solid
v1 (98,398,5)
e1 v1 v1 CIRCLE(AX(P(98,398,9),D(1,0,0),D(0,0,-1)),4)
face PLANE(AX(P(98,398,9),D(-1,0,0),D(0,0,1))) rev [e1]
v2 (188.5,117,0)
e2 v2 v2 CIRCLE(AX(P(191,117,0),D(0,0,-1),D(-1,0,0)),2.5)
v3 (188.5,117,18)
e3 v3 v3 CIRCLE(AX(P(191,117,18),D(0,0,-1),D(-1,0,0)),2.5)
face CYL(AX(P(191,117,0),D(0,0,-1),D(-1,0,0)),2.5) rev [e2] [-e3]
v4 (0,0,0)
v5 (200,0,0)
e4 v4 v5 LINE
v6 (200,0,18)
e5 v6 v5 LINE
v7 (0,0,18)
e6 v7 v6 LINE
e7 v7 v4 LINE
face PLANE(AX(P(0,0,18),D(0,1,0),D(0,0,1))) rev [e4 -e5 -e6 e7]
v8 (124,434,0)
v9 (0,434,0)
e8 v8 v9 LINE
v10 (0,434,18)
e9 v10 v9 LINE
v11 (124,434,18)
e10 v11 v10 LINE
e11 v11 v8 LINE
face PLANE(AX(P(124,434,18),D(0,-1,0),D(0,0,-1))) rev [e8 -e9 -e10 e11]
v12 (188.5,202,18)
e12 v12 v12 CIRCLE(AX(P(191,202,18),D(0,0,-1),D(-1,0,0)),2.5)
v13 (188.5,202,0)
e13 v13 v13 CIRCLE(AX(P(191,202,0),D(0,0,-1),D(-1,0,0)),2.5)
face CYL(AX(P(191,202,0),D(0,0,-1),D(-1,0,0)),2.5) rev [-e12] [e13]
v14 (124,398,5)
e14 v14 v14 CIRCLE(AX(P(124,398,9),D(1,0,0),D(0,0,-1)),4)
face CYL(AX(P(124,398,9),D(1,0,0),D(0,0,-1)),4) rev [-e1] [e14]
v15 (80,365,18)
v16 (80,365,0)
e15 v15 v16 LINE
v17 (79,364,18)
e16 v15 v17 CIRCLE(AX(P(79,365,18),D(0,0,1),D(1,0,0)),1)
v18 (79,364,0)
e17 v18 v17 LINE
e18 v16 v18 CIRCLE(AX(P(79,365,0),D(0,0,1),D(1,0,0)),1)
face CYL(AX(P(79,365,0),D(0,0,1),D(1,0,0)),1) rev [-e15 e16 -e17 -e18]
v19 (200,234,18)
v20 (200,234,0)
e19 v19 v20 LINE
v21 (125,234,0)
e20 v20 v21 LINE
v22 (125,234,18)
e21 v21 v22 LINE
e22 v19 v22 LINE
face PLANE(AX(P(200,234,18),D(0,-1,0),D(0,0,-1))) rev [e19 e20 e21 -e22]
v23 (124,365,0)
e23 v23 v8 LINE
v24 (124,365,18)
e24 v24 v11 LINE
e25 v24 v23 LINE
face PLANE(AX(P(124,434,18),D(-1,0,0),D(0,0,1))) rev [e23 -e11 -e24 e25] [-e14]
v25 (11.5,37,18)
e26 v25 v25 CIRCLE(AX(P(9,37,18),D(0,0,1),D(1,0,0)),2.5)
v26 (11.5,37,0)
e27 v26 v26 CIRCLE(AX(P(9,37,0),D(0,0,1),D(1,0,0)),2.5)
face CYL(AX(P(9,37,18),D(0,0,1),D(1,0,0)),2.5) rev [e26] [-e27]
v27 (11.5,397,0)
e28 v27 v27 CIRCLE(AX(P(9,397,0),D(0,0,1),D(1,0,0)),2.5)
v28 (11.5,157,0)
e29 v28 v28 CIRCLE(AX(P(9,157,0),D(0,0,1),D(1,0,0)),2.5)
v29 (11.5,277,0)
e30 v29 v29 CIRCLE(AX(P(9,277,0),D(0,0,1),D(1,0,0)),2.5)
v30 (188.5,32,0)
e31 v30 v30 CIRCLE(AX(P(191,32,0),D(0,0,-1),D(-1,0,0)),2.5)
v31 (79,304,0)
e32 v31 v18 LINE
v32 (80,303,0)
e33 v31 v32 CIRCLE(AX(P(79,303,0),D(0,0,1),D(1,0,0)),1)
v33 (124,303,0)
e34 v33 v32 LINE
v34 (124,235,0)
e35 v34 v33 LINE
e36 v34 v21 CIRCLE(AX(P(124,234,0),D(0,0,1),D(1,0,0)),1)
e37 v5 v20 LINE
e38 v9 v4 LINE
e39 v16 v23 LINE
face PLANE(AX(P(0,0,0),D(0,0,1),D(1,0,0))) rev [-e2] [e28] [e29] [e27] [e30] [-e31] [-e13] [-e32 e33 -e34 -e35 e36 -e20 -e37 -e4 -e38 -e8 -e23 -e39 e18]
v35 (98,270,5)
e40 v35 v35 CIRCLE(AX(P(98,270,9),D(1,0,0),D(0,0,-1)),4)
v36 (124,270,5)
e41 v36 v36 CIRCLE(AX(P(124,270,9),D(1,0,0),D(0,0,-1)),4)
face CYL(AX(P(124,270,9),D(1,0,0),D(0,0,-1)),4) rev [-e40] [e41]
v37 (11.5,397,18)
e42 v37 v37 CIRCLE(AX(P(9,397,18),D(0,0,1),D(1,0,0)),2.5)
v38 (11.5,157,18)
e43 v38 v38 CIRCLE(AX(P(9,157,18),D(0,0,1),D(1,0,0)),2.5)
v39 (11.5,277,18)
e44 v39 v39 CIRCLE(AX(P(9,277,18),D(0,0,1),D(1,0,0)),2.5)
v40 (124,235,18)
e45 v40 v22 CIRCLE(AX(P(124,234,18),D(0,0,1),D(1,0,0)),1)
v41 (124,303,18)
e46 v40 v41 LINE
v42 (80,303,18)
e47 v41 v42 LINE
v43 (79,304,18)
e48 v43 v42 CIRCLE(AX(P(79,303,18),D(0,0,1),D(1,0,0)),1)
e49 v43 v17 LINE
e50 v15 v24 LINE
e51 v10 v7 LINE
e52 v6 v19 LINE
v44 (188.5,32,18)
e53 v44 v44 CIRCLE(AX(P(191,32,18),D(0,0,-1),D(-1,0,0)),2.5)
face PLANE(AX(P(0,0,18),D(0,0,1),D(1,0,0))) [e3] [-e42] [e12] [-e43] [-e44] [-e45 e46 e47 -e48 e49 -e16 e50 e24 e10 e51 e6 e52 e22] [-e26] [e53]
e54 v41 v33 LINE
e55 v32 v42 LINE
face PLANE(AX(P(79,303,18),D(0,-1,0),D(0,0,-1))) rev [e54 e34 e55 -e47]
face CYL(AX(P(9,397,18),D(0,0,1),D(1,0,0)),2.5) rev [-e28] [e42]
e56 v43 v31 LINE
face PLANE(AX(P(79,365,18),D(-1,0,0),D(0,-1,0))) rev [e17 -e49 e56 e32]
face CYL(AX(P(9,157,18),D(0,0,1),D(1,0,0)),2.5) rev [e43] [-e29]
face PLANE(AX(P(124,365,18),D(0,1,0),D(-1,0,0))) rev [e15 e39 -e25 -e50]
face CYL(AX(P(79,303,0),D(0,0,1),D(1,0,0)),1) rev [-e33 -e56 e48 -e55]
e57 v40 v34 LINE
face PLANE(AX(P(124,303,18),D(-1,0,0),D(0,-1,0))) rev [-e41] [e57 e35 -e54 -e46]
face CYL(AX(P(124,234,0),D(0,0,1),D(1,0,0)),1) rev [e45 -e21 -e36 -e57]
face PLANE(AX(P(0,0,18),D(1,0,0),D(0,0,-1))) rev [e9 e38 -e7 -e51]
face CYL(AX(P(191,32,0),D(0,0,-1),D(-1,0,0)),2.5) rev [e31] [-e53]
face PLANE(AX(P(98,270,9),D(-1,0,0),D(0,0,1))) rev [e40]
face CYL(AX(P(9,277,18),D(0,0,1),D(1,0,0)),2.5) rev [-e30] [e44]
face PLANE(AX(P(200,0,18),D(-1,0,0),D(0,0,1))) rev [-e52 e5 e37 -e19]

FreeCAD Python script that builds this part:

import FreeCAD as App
import Part
import Sketcher
Q = App.Units.Quantity

doc = App.newDocument("Part")
body = doc.addObject("PartDesign::Body", "Body")

sketch1 = doc.addObject("Sketcher::SketchObject", "Sketch")
body.addObject(sketch1)
sketch1.AttachmentSupport = (doc.XY_Plane, [""])
sketch1.MapMode = "FlatFace"
sketch1.addGeometry(Part.LineSegment(App.Vector(200, 234, 0), App.Vector(124, 234, 0)), False)
sketch1.addGeometry(Part.LineSegment(App.Vector(124, 234, 0), App.Vector(124, 303, 0)), False)
sketch1.addGeometry(Part.LineSegment(App.Vector(124, 303, 0), App.Vector(79, 303, 0)), False)
sketch1.addGeometry(Part.LineSegment(App.Vector(79, 303, 0), App.Vector(79, 365, 0)), False)
sketch1.addGeometry(Part.LineSegment(App.Vector(79, 365, 0), App.Vector(124, 365, 0)), False)
sketch1.addGeometry(Part.LineSegment(App.Vector(124, 365, 0), App.Vector(124, 434, 0)), False)
sketch1.addGeometry(Part.LineSegment(App.Vector(124, 434, 0), App.Vector(0, 434, 0)), False)
sketch1.addGeometry(Part.LineSegment(App.Vector(0, 434, 0), App.Vector(0, 0, 0)), False)
sketch1.addGeometry(Part.LineSegment(App.Vector(0, 0, 0), App.Vector(200, 0, 0)), False)
sketch1.addGeometry(Part.LineSegment(App.Vector(200, 0, 0), App.Vector(200, 234, 0)), False)
sketch1.addConstraint(Sketcher.Constraint("Coincident", 0, 2, 1, 1))
sketch1.addConstraint(Sketcher.Constraint("Coincident", 1, 2, 2, 1))
sketch1.addConstraint(Sketcher.Constraint("Coincident", 2, 2, 3, 1))
sketch1.addConstraint(Sketcher.Constraint("Coincident", 3, 2, 4, 1))
sketch1.addConstraint(Sketcher.Constraint("Coincident", 4, 2, 5, 1))
sketch1.addConstraint(Sketcher.Constraint("Coincident", 5, 2, 6, 1))
sketch1.addConstraint(Sketcher.Constraint("Coincident", 6, 2, 7, 1))
sketch1.addConstraint(Sketcher.Constraint("Coincident", 7, 2, 8, 1))
sketch1.addConstraint(Sketcher.Constraint("Coincident", 8, 2, 9, 1))
sketch1.addConstraint(Sketcher.Constraint("Coincident", 9, 2, 0, 1))
sketch1.addConstraint(Sketcher.Constraint("Horizontal", 0))
sketch1.addConstraint(Sketcher.Constraint("Vertical", 1))
sketch1.addConstraint(Sketcher.Constraint("Horizontal", 2))
sketch1.addConstraint(Sketcher.Constraint("Vertical", 3))
sketch1.addConstraint(Sketcher.Constraint("Horizontal", 4))
sketch1.addConstraint(Sketcher.Constraint("Vertical", 5))
sketch1.addConstraint(Sketcher.Constraint("Horizontal", 6))
sketch1.addConstraint(Sketcher.Constraint("Vertical", 7))
sketch1.addConstraint(Sketcher.Constraint("Horizontal", 8))
sketch1.addConstraint(Sketcher.Constraint("Vertical", 9))
sketch1.addConstraint(Sketcher.Constraint("Coincident", 7, 2, -1, 1))
sketch1.addConstraint(Sketcher.Constraint("Vertical", 1, 2, 4, 2))
sketch1.addConstraint(Sketcher.Constraint("Equal", 1, 5))
sketch1.addConstraint(Sketcher.Constraint("DistanceX", 0, 2, 0, 1, Q("76 mm")))
sketch1.addConstraint(Sketcher.Constraint("DistanceX", 2, 2, 2, 1, Q("45 mm")))
sketch1.addConstraint(Sketcher.Constraint("DistanceX", 6, 2, 6, 1, Q("124 mm")))
sketch1.addConstraint(Sketcher.Constraint("DistanceY", 1, 1, 1, 2, Q("69 mm")))
sketch1.addConstraint(Sketcher.Constraint("DistanceY", 3, 1, 3, 2, Q("62 mm")))
sketch1.addConstraint(Sketcher.Constraint("DistanceY", 7, 2, 7, 1, Q("434 mm")))
pad1 = doc.addObject("PartDesign::Pad", "Pad")
body.addObject(pad1)
pad1.Profile = sketch1
pad1.Length = 18

sketch2 = doc.addObject("Sketcher::SketchObject", "Sketch001")
body.addObject(sketch2)
sketch2.AttachmentSupport = (doc.XY_Plane, [""])
sketch2.MapMode = "FlatFace"
sketch2.AttachmentOffset = App.Placement(App.Vector(0, 0, 18), App.Rotation())
sketch2.addGeometry(Part.Circle(App.Vector(79, 365, 0), App.Vector(0, 0, 1), 1), False)
sketch2.addGeometry(Part.Circle(App.Vector(79, 303, 0), App.Vector(0, 0, 1), 1), False)
sketch2.addGeometry(Part.Circle(App.Vector(124, 234, 0), App.Vector(0, 0, 1), 1), False)
sketch2.addConstraint(Sketcher.Constraint("Equal", 0, 1))
sketch2.addConstraint(Sketcher.Constraint("Equal", 1, 2))
sketch2.addConstraint(Sketcher.Constraint("Vertical", 0, 3, 1, 3))
sketch2.addConstraint(Sketcher.Constraint("Diameter", 0, Q("2 mm")))
sketch2.addConstraint(Sketcher.Constraint("DistanceX", -1, 1, 0, 3, Q("79 mm")))
sketch2.addConstraint(Sketcher.Constraint("DistanceY", -1, 1, 0, 3, Q("365 mm")))
sketch2.addConstraint(Sketcher.Constraint("DistanceY", -1, 1, 1, 3, Q("303 mm")))
sketch2.addConstraint(Sketcher.Constraint("DistanceX", -1, 1, 2, 3, Q("124 mm")))
sketch2.addConstraint(Sketcher.Constraint("DistanceY", -1, 1, 2, 3, Q("234 mm")))
pocket1 = doc.addObject("PartDesign::Pocket", "Pocket")
body.addObject(pocket1)
pocket1.Profile = sketch2
pocket1.Length = 18

sketch3 = doc.addObject("Sketcher::SketchObject", "Sketch002")
body.addObject(sketch3)
sketch3.AttachmentSupport = (doc.XY_Plane, [""])
sketch3.MapMode = "FlatFace"
sketch3.AttachmentOffset = App.Placement(App.Vector(0, 0, 18), App.Rotation())
sketch3.addGeometry(Part.Circle(App.Vector(9, 397, 0), App.Vector(0, 0, 1), 2.5), False)
sketch3.addGeometry(Part.Circle(App.Vector(9, 277, 0), App.Vector(0, 0, 1), 2.5), False)
sketch3.addGeometry(Part.Circle(App.Vector(9, 157, 0), App.Vector(0, 0, 1), 2.5), False)
sketch3.addGeometry(Part.Circle(App.Vector(9, 37, 0), App.Vector(0, 0, 1), 2.5), False)
sketch3.addConstraint(Sketcher.Constraint("Equal", 0, 1))
sketch3.addConstraint(Sketcher.Constraint("Equal", 1, 2))
sketch3.addConstraint(Sketcher.Constraint("Equal", 2, 3))
sketch3.addConstraint(Sketcher.Constraint("Vertical", 0, 3, 1, 3))
sketch3.addConstraint(Sketcher.Constraint("Vertical", 1, 3, 2, 3))
sketch3.addConstraint(Sketcher.Constraint("Vertical", 2, 3, 3, 3))
sketch3.addConstraint(Sketcher.Constraint("Diameter", 0, Q("5 mm")))
sketch3.addConstraint(Sketcher.Constraint("DistanceX", -1, 1, 0, 3, Q("9 mm")))
sketch3.addConstraint(Sketcher.Constraint("DistanceY", -1, 1, 0, 3, Q("397 mm")))
sketch3.addConstraint(Sketcher.Constraint("DistanceY", -1, 1, 1, 3, Q("277 mm")))
sketch3.addConstraint(Sketcher.Constraint("DistanceY", -1, 1, 2, 3, Q("157 mm")))
sketch3.addConstraint(Sketcher.Constraint("DistanceY", -1, 1, 3, 3, Q("37 mm")))
doc.recompute()
hole = doc.addObject("PartDesign::Hole", "Hole")
body.addObject(hole)
hole.Profile = sketch3
hole.ThreadType = "None"
hole.Diameter = 5
hole.DepthType = "ThroughAll"

sketch4 = doc.addObject("Sketcher::SketchObject", "Sketch003")
body.addObject(sketch4)
sketch4.AttachmentSupport = (doc.XY_Plane, [""])
sketch4.MapMode = "FlatFace"
sketch4.addGeometry(Part.Circle(App.Vector(191, 202, 0), App.Vector(0, 0, 1), 2.5), False)
sketch4.addGeometry(Part.Circle(App.Vector(191, 117, 0), App.Vector(0, 0, 1), 2.5), False)
sketch4.addGeometry(Part.Circle(App.Vector(191, 32, 0), App.Vector(0, 0, 1), 2.5), False)
sketch4.addConstraint(Sketcher.Constraint("Equal", 0, 1))
sketch4.addConstraint(Sketcher.Constraint("Equal", 1, 2))
sketch4.addConstraint(Sketcher.Constraint("Vertical", 0, 3, 1, 3))
sketch4.addConstraint(Sketcher.Constraint("Vertical", 1, 3, 2, 3))
sketch4.addConstraint(Sketcher.Constraint("Diameter", 0, Q("5 mm")))
sketch4.addConstraint(Sketcher.Constraint("DistanceX", -1, 1, 0, 3, Q("191 mm")))
sketch4.addConstraint(Sketcher.Constraint("DistanceY", -1, 1, 0, 3, Q("202 mm")))
sketch4.addConstraint(Sketcher.Constraint("DistanceY", -1, 1, 1, 3, Q("117 mm")))
sketch4.addConstraint(Sketcher.Constraint("DistanceY", -1, 1, 2, 3, Q("32 mm")))
doc.recompute()
hole2 = doc.addObject("PartDesign::Hole", "Hole001")
body.addObject(hole2)
hole2.Profile = sketch4
hole2.ThreadType = "None"
hole2.Diameter = 5
hole2.DepthType = "ThroughAll"
hole2.Reversed = True

sketch5 = doc.addObject("Sketcher::SketchObject", "Sketch004")
body.addObject(sketch5)
sketch5.AttachmentSupport = (doc.YZ_Plane, [""])
sketch5.MapMode = "FlatFace"
sketch5.AttachmentOffset = App.Placement(App.Vector(0, 0, 124), App.Rotation())
sketch5.addGeometry(Part.Circle(App.Vector(398, 9, 0), App.Vector(0, 0, 1), 4), False)
sketch5.addGeometry(Part.Circle(App.Vector(270, 9, 0), App.Vector(0, 0, 1), 4), False)
sketch5.addConstraint(Sketcher.Constraint("Equal", 0, 1))
sketch5.addConstraint(Sketcher.Constraint("Horizontal", 0, 3, 1, 3))
sketch5.addConstraint(Sketcher.Constraint("Diameter", 0, Q("8 mm")))
sketch5.addConstraint(Sketcher.Constraint("DistanceX", -1, 1, 0, 3, Q("398 mm")))
sketch5.addConstraint(Sketcher.Constraint("DistanceY", -1, 1, 0, 3, Q("9 mm")))
sketch5.addConstraint(Sketcher.Constraint("DistanceX", -1, 1, 1, 3, Q("270 mm")))
doc.recompute()
hole3 = doc.addObject("PartDesign::Hole", "Hole002")
body.addObject(hole3)
hole3.Profile = sketch5
hole3.ThreadType = "None"
hole3.Diameter = 8
hole3.DepthType = "Dimension"
hole3.Depth = 26
hole3.DrillPoint = "Flat"

doc.recompute()
